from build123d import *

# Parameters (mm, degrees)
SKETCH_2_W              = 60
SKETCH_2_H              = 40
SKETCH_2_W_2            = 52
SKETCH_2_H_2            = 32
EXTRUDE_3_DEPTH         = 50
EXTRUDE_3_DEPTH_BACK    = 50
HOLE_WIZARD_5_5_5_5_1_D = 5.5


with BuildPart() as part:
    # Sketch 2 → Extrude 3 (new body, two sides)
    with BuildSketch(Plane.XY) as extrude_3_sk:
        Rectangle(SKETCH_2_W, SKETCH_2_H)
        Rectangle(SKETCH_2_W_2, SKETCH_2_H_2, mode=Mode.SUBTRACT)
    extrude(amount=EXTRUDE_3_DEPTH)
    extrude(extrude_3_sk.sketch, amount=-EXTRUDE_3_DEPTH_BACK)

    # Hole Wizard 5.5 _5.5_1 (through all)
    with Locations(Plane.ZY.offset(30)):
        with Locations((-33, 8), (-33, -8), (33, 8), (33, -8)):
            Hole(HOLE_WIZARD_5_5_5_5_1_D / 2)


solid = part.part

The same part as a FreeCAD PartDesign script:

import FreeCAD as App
import Part
import Sketcher

V = App.Vector

doc = App.newDocument("Part")
body = doc.addObject("PartDesign::Body", "Body")

# Sketch on XY plane
sketch1 = body.newObject("Sketcher::SketchObject", "Sketch")
sketch1.AttachmentSupport = (doc.getObject("XY_Plane"), [""])
sketch1.MapMode = "FlatFace"
sketch1.addGeometry(Part.LineSegment(V(-30, 20, 0), V(-30, -20, 0)), False)
sketch1.addGeometry(Part.LineSegment(V(-30, -20, 0), V(30, -20, 0)), False)
sketch1.addGeometry(Part.LineSegment(V(30, -20, 0), V(30, 20, 0)), False)
sketch1.addGeometry(Part.LineSegment(V(30, 20, 0), V(-30, 20, 0)), False)
sketch1.addGeometry(Part.LineSegment(V(26, -16, 0), V(-26, -16, 0)), False)
sketch1.addGeometry(Part.LineSegment(V(-26, -16, 0), V(-26, 16, 0)), False)
sketch1.addGeometry(Part.LineSegment(V(-26, 16, 0), V(26, 16, 0)), False)
sketch1.addGeometry(Part.LineSegment(V(26, 16, 0), V(26, -16, 0)), False)
sketch1.addConstraint(Sketcher.Constraint("Coincident", 0, 2, 1, 1))
sketch1.addConstraint(Sketcher.Constraint("Coincident", 1, 2, 2, 1))
sketch1.addConstraint(Sketcher.Constraint("Coincident", 2, 2, 3, 1))
sketch1.addConstraint(Sketcher.Constraint("Coincident", 3, 2, 0, 1))
sketch1.addConstraint(Sketcher.Constraint("Coincident", 4, 2, 5, 1))
sketch1.addConstraint(Sketcher.Constraint("Coincident", 5, 2, 6, 1))
sketch1.addConstraint(Sketcher.Constraint("Coincident", 6, 2, 7, 1))
sketch1.addConstraint(Sketcher.Constraint("Coincident", 7, 2, 4, 1))
sketch1.addConstraint(Sketcher.Constraint("Vertical", 0))
sketch1.addConstraint(Sketcher.Constraint("Horizontal", 1))
sketch1.addConstraint(Sketcher.Constraint("Vertical", 2))
sketch1.addConstraint(Sketcher.Constraint("Horizontal", 3))
sketch1.addConstraint(Sketcher.Constraint("Horizontal", 4))
sketch1.addConstraint(Sketcher.Constraint("Vertical", 5))
sketch1.addConstraint(Sketcher.Constraint("Horizontal", 6))
sketch1.addConstraint(Sketcher.Constraint("Vertical", 7))
sketch1.addConstraint(Sketcher.Constraint("Symmetric", 0, 2, 2, 2, -1, 1))
sketch1.addConstraint(Sketcher.Constraint("Symmetric", 4, 2, 6, 2, -1, 1))
sketch1.addConstraint(Sketcher.Constraint("DistanceX", 1, 1, 1, 2, 60.0))
sketch1.addConstraint(Sketcher.Constraint("DistanceX", 4, 2, 4, 1, 52.0))
sketch1.addConstraint(Sketcher.Constraint("DistanceY", 0, 2, 0, 1, 40.0))
sketch1.addConstraint(Sketcher.Constraint("DistanceY", 5, 1, 5, 2, 32.0))
pad1 = body.newObject("PartDesign::Pad", "Pad")
pad1.Profile = sketch1
pad1.Type = "TwoLengths"
pad1.Length = 50
pad1.Length2 = 50

# Sketch on YZ plane
sketch2 = body.newObject("Sketcher::SketchObject", "Sketch001")
sketch2.AttachmentSupport = (doc.getObject("YZ_Plane"), [""])
sketch2.MapMode = "FlatFace"
sketch2.AttachmentOffset = App.Placement(V(0, 0, -30), App.Rotation())
sketch2.addGeometry(Part.Circle(V(8, -33, 0), V(0, 0, 1), 2.8), False)
sketch2.addGeometry(Part.Circle(V(-8, -33, 0), V(0, 0, 1), 2.8), False)
sketch2.addGeometry(Part.Circle(V(8, 33, 0), V(0, 0, 1), 2.8), False)
sketch2.addGeometry(Part.Circle(V(-8, 33, 0), V(0, 0, 1), 2.8), False)
sketch2.addConstraint(Sketcher.Constraint("Equal", 0, 1))
sketch2.addConstraint(Sketcher.Constraint("Equal", 1, 2))
sketch2.addConstraint(Sketcher.Constraint("Equal", 2, 3))
sketch2.addConstraint(Sketcher.Constraint("Symmetric", 1, 3, 2, 3, -1, 1))
sketch2.addConstraint(Sketcher.Constraint("Symmetric", 0, 3, 3, 3, -1, 1))
sketch2.addConstraint(Sketcher.Constraint("Symmetric", 0, 3, 1, 3, -2))
sketch2.addConstraint(Sketcher.Constraint("Diameter", 0, 5.5))
sketch2.addConstraint(Sketcher.Constraint("DistanceX", -1, 1, 0, 3, 8.0))
sketch2.addConstraint(Sketcher.Constraint("DistanceY", 0, 3, -1, 1, 33.0))
doc.recompute()
hole = body.newObject("PartDesign::Hole", "Hole")
hole.Profile = sketch2
hole.ThreadType = "None"
hole.Diameter = 5.5
hole.DepthType = "ThroughAll"
hole.Reversed = True

doc.recompute()
